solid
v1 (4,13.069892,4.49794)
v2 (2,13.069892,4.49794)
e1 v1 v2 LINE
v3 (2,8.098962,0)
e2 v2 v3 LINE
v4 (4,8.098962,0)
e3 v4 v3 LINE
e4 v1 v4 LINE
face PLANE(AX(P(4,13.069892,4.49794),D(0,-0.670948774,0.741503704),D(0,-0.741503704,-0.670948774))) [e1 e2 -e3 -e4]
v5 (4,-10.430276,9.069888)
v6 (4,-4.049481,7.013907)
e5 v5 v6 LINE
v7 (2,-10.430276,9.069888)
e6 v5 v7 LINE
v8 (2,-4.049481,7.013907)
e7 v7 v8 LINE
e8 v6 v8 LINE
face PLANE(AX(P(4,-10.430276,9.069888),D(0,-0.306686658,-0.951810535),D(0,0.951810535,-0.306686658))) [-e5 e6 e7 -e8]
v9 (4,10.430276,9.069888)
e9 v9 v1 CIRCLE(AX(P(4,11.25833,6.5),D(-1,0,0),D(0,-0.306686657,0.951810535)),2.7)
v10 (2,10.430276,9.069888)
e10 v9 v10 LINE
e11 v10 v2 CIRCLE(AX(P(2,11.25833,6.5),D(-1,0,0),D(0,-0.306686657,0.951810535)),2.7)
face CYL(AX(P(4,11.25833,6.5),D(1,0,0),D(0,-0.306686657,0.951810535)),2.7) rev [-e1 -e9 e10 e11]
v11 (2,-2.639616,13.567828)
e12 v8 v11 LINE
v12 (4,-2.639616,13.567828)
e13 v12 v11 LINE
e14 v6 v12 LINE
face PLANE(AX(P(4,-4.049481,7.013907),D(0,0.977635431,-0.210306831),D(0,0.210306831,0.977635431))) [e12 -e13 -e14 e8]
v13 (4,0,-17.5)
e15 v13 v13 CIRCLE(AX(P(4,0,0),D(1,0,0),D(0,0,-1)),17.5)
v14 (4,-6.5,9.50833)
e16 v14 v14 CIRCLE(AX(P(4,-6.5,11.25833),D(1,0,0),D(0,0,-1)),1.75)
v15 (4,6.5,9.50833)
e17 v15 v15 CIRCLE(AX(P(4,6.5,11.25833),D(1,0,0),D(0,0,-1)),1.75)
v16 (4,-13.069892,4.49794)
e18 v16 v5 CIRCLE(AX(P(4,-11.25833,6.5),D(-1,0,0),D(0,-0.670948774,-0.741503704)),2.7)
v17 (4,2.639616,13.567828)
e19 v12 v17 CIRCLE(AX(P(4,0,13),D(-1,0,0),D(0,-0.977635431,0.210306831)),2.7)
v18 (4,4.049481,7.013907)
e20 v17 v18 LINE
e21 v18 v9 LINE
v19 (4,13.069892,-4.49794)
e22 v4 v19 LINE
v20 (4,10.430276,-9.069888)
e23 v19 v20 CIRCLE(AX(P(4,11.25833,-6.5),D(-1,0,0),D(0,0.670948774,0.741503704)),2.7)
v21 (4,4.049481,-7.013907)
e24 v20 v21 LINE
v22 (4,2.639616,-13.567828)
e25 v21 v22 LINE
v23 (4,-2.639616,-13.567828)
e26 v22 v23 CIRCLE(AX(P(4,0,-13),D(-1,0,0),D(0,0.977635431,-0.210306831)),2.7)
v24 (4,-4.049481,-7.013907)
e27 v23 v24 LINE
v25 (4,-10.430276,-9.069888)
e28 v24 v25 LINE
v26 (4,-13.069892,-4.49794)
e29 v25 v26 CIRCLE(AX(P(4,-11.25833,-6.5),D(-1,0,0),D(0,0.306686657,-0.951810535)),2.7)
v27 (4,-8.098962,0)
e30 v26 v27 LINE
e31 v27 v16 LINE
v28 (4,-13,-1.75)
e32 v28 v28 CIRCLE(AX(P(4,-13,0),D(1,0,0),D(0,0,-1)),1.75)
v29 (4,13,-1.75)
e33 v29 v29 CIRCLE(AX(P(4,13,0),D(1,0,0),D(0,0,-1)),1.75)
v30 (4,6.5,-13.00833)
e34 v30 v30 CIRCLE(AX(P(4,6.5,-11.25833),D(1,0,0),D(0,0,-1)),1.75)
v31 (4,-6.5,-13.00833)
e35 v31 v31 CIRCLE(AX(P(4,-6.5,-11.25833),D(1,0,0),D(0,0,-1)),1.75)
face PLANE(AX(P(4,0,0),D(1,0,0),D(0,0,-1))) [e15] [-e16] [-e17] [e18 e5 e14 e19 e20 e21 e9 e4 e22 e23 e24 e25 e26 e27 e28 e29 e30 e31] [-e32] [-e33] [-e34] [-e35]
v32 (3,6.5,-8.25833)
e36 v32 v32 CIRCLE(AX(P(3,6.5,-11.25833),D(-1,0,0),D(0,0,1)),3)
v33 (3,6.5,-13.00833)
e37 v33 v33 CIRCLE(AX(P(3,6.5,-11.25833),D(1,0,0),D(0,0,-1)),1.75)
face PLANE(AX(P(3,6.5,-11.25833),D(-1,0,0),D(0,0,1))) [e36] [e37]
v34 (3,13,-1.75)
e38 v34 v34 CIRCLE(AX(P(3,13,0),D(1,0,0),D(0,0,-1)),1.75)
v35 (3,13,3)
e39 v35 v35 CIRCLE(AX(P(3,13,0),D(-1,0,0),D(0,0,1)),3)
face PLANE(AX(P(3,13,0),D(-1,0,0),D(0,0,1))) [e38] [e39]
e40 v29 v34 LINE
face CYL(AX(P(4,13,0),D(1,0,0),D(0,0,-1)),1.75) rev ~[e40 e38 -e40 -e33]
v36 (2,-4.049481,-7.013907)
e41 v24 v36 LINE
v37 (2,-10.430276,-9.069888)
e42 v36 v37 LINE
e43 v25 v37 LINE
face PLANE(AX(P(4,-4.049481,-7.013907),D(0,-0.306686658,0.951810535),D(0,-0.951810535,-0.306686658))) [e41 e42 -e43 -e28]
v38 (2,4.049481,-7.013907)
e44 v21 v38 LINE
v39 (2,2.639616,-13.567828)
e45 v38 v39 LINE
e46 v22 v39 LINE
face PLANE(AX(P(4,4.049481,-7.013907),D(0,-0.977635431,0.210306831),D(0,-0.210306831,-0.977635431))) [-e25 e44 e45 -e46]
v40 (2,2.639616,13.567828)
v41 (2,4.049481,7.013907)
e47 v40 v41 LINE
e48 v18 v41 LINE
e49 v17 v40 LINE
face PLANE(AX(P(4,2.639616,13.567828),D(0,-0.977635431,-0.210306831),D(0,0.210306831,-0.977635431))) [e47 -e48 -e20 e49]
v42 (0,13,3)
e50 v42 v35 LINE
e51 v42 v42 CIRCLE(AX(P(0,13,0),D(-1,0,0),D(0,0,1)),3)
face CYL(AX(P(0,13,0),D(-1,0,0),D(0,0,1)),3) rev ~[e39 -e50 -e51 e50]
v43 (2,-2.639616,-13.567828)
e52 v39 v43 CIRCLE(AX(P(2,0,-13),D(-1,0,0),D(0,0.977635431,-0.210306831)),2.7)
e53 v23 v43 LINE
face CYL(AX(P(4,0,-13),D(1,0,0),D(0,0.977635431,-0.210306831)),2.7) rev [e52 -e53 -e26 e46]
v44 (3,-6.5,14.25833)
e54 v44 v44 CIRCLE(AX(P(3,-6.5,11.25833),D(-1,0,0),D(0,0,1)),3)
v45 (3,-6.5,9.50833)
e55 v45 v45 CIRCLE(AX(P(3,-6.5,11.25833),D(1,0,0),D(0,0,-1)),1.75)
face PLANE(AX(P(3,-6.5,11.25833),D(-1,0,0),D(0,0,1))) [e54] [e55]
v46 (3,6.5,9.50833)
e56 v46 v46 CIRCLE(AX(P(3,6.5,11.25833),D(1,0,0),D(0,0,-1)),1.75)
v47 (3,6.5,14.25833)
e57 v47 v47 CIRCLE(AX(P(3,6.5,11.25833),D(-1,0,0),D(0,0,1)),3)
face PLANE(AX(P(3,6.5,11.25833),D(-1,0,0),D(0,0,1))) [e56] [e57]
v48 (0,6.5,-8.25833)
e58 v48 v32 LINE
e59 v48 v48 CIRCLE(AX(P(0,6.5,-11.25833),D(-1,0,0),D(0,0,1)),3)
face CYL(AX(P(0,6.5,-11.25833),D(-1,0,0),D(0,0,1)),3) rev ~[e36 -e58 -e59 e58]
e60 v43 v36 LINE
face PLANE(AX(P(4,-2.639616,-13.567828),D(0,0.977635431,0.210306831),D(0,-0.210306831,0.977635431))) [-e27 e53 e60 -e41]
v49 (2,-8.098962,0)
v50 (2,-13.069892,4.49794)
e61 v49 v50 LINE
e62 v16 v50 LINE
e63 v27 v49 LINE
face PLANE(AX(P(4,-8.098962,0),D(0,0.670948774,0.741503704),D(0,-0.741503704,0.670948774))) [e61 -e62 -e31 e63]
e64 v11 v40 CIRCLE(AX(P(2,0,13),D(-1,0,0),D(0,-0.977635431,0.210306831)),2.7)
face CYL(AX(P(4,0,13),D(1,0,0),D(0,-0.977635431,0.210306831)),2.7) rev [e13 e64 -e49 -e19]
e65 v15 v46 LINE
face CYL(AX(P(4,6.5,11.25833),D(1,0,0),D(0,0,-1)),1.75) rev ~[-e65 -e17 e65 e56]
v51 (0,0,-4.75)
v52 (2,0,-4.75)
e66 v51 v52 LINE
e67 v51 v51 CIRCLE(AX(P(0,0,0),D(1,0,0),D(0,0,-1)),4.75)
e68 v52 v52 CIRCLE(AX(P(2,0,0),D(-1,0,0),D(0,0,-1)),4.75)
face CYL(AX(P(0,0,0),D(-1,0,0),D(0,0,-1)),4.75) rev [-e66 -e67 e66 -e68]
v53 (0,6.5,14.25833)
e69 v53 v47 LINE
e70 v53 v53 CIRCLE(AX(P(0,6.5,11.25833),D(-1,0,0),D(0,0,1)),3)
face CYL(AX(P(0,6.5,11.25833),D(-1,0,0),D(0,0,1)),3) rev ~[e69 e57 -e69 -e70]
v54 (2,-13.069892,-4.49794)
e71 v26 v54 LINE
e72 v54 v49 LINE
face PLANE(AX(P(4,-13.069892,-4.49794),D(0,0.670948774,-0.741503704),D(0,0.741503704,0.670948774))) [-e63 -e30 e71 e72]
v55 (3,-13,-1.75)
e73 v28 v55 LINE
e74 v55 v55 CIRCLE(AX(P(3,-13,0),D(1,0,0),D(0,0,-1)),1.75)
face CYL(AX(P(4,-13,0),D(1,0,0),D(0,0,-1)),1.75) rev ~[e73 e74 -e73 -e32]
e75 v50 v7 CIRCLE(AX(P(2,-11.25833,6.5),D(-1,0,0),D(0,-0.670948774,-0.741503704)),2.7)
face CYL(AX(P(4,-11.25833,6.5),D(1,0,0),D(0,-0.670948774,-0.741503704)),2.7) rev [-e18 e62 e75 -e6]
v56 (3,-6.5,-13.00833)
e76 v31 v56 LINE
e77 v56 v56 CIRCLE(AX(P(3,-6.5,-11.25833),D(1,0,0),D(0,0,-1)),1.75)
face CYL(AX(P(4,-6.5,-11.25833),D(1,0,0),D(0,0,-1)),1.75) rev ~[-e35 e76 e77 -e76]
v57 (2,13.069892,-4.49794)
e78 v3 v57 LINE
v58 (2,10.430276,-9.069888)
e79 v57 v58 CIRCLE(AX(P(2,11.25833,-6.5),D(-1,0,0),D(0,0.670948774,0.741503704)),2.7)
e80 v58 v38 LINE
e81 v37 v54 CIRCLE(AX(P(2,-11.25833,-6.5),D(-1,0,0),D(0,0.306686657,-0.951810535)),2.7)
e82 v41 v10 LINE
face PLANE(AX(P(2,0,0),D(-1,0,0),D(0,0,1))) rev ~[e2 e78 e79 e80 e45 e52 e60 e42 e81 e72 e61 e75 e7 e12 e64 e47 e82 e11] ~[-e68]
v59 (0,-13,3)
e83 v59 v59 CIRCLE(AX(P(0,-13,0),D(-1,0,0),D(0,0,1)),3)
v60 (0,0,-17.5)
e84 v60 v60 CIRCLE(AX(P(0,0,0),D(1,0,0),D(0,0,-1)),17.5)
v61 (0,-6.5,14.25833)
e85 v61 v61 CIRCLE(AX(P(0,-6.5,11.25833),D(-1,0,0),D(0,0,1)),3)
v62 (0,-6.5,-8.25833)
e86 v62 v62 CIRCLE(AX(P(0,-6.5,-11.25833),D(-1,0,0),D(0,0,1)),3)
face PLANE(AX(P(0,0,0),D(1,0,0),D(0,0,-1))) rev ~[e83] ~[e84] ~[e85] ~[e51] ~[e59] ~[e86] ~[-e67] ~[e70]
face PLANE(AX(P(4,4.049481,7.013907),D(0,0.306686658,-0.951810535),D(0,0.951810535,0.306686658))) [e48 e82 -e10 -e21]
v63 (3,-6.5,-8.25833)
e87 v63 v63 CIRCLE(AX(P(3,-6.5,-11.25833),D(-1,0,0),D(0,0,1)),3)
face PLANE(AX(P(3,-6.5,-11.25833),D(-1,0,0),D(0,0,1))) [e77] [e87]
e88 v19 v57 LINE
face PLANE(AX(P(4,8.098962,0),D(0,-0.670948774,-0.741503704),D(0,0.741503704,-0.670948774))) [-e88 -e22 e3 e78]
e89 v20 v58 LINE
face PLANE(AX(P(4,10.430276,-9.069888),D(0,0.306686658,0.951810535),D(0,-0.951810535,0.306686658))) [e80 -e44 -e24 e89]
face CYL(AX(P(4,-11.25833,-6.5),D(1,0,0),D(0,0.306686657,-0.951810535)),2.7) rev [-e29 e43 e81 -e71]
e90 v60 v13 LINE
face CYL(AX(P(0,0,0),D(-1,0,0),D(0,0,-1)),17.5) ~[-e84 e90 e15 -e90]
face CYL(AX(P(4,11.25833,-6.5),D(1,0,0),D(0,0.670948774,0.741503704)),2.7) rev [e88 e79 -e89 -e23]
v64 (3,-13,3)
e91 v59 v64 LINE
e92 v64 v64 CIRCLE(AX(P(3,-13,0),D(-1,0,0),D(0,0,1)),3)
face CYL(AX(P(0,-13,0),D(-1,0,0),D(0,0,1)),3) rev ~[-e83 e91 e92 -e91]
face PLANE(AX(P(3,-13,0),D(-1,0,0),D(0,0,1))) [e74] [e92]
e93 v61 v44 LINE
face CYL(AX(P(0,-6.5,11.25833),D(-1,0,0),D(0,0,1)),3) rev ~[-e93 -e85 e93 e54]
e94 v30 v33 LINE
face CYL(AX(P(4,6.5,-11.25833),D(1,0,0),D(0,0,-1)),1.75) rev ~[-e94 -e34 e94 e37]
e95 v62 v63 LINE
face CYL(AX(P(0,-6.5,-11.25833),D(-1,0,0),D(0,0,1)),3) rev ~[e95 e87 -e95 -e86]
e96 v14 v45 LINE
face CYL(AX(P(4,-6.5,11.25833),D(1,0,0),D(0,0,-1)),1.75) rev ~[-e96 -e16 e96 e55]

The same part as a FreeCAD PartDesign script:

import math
import FreeCAD as App
import Part
import Sketcher

V = App.Vector
Q = App.Units.Quantity

doc = App.newDocument("Part")
body = doc.addObject("PartDesign::Body", "Body")

sketch1 = body.newObject("Sketcher::SketchObject", "Sketch")
sketch1.AttachmentSupport = (doc.getObject("YZ_Plane"), [""])
sketch1.MapMode = "FlatFace"
sketch1.addGeometry(Part.Circle(V(0, 0, 0), V(0, 0, 1), 17.5), False)
sketch1.addGeometry(Part.Circle(V(0, 0, 0), V(0, 0, 1), 4.8), False)
sketch1.addConstraint(Sketcher.Constraint("Coincident", 0, 3, -1, 1))
sketch1.addConstraint(Sketcher.Constraint("Coincident", 1, 3, -1, 1))
sketch1.addConstraint(Sketcher.Constraint("Diameter", 0, Q("35 mm")))
sketch1.addConstraint(Sketcher.Constraint("Diameter", 1, Q("9.5 mm")))
pad1 = body.newObject("PartDesign::Pad", "Pad")
pad1.Profile = sketch1
pad1.Length = 4

sketch2 = body.newObject("Sketcher::SketchObject", "Sketch001")
sketch2.AttachmentSupport = (doc.getObject("YZ_Plane"), [""])
sketch2.MapMode = "FlatFace"
sketch2.AttachmentOffset = App.Placement(V(0, 0, 4), App.Rotation())
sketch2.addGeometry(Part.LineSegment(V(-4, -7, 0), V(-2.6, -13.6, 0)), False)
sketch2.addGeometry(Part.ArcOfCircle(Part.Circle(V(0, -13, 0), V(0, 0, 1), 2.7), math.radians(-168), math.radians(-12)), False)
sketch2.addGeometry(Part.LineSegment(V(2.6, -13.6, 0), V(4, -7, 0)), False)
sketch2.addGeometry(Part.LineSegment(V(4, -7, 0), V(10.4, -9.1, 0)), False)
sketch2.addGeometry(Part.ArcOfCircle(Part.Circle(V(11.3, -6.5, 0), V(0, 0, 1), 2.7), math.radians(-108), math.radians(48)), False)
sketch2.addGeometry(Part.LineSegment(V(13.1, -4.5, 0), V(8.1, 0, 0)), False)
sketch2.addGeometry(Part.LineSegment(V(8.1, 0, 0), V(13.1, 4.5, 0)), False)
sketch2.addGeometry(Part.ArcOfCircle(Part.Circle(V(11.3, 6.5, 0), V(0, 0, 1), 2.7), math.radians(-48), math.radians(108)), False)
sketch2.addGeometry(Part.LineSegment(V(10.4, 9.1, 0), V(4, 7, 0)), False)
sketch2.addGeometry(Part.LineSegment(V(4, 7, 0), V(2.6, 13.6, 0)), False)
sketch2.addGeometry(Part.ArcOfCircle(Part.Circle(V(0, 13, 0), V(0, 0, 1), 2.7), math.radians(12), math.radians(168)), False)
sketch2.addGeometry(Part.LineSegment(V(-2.6, 13.6, 0), V(-4, 7, 0)), False)
sketch2.addGeometry(Part.LineSegment(V(-4, 7, 0), V(-10.4, 9.1, 0)), False)
sketch2.addGeometry(Part.ArcOfCircle(Part.Circle(V(-11.3, 6.5, 0), V(0, 0, 1), 2.7), math.radians(72), math.radians(228)), False)
sketch2.addGeometry(Part.LineSegment(V(-13.1, 4.5, 0), V(-8.1, 0, 0)), False)
sketch2.addGeometry(Part.LineSegment(V(-8.1, 0, 0), V(-13.1, -4.5, 0)), False)
sketch2.addGeometry(Part.ArcOfCircle(Part.Circle(V(-11.3, -6.5, 0), V(0, 0, 1), 2.7), math.radians(132), math.radians(288)), False)
sketch2.addGeometry(Part.LineSegment(V(-10.4, -9.1, 0), V(-4, -7, 0)), False)
sketch2.addConstraint(Sketcher.Constraint("Tangent", 0, 2, 1, 1))
sketch2.addConstraint(Sketcher.Constraint("Tangent", 1, 2, 2, 1))
sketch2.addConstraint(Sketcher.Constraint("Coincident", 2, 2, 3, 1))
sketch2.addConstraint(Sketcher.Constraint("Tangent", 3, 2, 4, 1))
sketch2.addConstraint(Sketcher.Constraint("Tangent", 4, 2, 5, 1))
sketch2.addConstraint(Sketcher.Constraint("Coincident", 5, 2, 6, 1))
sketch2.addConstraint(Sketcher.Constraint("Tangent", 6, 2, 7, 1))
sketch2.addConstraint(Sketcher.Constraint("Tangent", 7, 2, 8, 1))
sketch2.addConstraint(Sketcher.Constraint("Coincident", 8, 2, 9, 1))
sketch2.addConstraint(Sketcher.Constraint("Tangent", 9, 2, 10, 1))
sketch2.addConstraint(Sketcher.Constraint("Tangent", 10, 2, 11, 1))
sketch2.addConstraint(Sketcher.Constraint("Coincident", 11, 2, 12, 1))
sketch2.addConstraint(Sketcher.Constraint("Tangent", 12, 2, 13, 1))
sketch2.addConstraint(Sketcher.Constraint("Tangent", 13, 2, 14, 1))
sketch2.addConstraint(Sketcher.Constraint("Coincident", 14, 2, 15, 1))
sketch2.addConstraint(Sketcher.Constraint("Tangent", 15, 2, 16, 1))
sketch2.addConstraint(Sketcher.Constraint("Tangent", 16, 2, 17, 1))
sketch2.addConstraint(Sketcher.Constraint("Coincident", 17, 2, 0, 1))
sketch2.addConstraint(Sketcher.Constraint("Equal", 1, 4))
sketch2.addConstraint(Sketcher.Constraint("Equal", 4, 7))
sketch2.addConstraint(Sketcher.Constraint("Equal", 7, 10))
sketch2.addConstraint(Sketcher.Constraint("Equal", 10, 13))
sketch2.addConstraint(Sketcher.Constraint("Equal", 13, 16))
sketch2.addConstraint(Sketcher.Constraint("Symmetric", 1, 3, 10, 3, -1, 1))
sketch2.addConstraint(Sketcher.Constraint("Symmetric", 4, 3, 13, 3, -1, 1))
sketch2.addConstraint(Sketcher.Constraint("Symmetric", 7, 3, 16, 3, -1, 1))
sketch2.addConstraint(Sketcher.Constraint("Symmetric", 2, 2, 11, 2, -1, 1))
sketch2.addConstraint(Sketcher.Constraint("Symmetric", 5, 2, 14, 2, -1, 1))
sketch2.addConstraint(Sketcher.Constraint("Symmetric", 8, 2, 17, 2, -1, 1))
sketch2.addConstraint(Sketcher.Constraint("Symmetric", 7, 3, 13, 3, -2))
sketch2.addConstraint(Sketcher.Constraint("Symmetric", 0, 2, 1, 2, -2))
sketch2.addConstraint(Sketcher.Constraint("PointOnObject", 5, 2, -1))
sketch2.addConstraint(Sketcher.Constraint("Horizontal", 8, 2, 11, 2))
sketch2.addConstraint(Sketcher.Constraint("Equal", 2, 3))
sketch2.addConstraint(Sketcher.Constraint("Equal", 3, 5))
sketch2.addConstraint(Sketcher.Constraint("Radius", 1, Q("2.7 mm")))
sketch2.addConstraint(Sketcher.Constraint("DistanceY", 1, 3, -1, 1, Q("13 mm")))
sketch2.addConstraint(Sketcher.Constraint("DistanceY", 4, 3, 7, 3, Q("13 mm")))
sketch2.addConstraint(Sketcher.Constraint("Distance", 0, Q("6.70385 mm")))
sketch2.addConstraint(Sketcher.Constraint("DistanceX", -1, 1, 4, 3, Q("11.25833 mm")))
pocket1 = body.newObject("PartDesign::Pocket", "Pocket")
pocket1.Profile = sketch2
pocket1.Length = 2

sketch3 = body.newObject("Sketcher::SketchObject", "Sketch002")
sketch3.AttachmentSupport = (doc.getObject("YZ_Plane"), [""])
sketch3.MapMode = "FlatFace"
sketch3.AttachmentOffset = App.Placement(V(0, 0, 4), App.Rotation())
sketch3.addGeometry(Part.Circle(V(13, 0, 0), V(0, 0, 1), 1.8), False)
sketch3.addGeometry(Part.Circle(V(6.5, -11.3, 0), V(0, 0, 1), 1.8), False)
sketch3.addGeometry(Part.Circle(V(-6.5, -11.3, 0), V(0, 0, 1), 1.8), False)
sketch3.addGeometry(Part.Circle(V(-13, 0, 0), V(0, 0, 1), 1.8), False)
sketch3.addGeometry(Part.Circle(V(-6.5, 11.3, 0), V(0, 0, 1), 1.8), False)
sketch3.addGeometry(Part.Circle(V(6.5, 11.3, 0), V(0, 0, 1), 1.8), False)
sketch3.addConstraint(Sketcher.Constraint("Equal", 0, 1))
sketch3.addConstraint(Sketcher.Constraint("Equal", 1, 2))
sketch3.addConstraint(Sketcher.Constraint("Equal", 2, 3))
sketch3.addConstraint(Sketcher.Constraint("Equal", 3, 4))
sketch3.addConstraint(Sketcher.Constraint("Equal", 4, 5))
sketch3.addConstraint(Sketcher.Constraint("Symmetric", 0, 3, 3, 3, -1, 1))
sketch3.addConstraint(Sketcher.Constraint("Symmetric", 1, 3, 4, 3, -1, 1))
sketch3.addConstraint(Sketcher.Constraint("Symmetric", 2, 3, 5, 3, -1, 1))
sketch3.addConstraint(Sketcher.Constraint("Symmetric", 1, 3, 2, 3, -2))
sketch3.addConstraint(Sketcher.Constraint("PointOnObject", 0, 3, -1))
sketch3.addConstraint(Sketcher.Constraint("Diameter", 0, Q("3.5 mm")))
sketch3.addConstraint(Sketcher.Constraint("DistanceX", -1, 1, 0, 3, Q("13 mm")))
sketch3.addConstraint(Sketcher.Constraint("DistanceX", 2, 3, 1, 3, Q("13 mm")))
sketch3.addConstraint(Sketcher.Constraint("DistanceY", 1, 3, -1, 1, Q("11.25833 mm")))
pocket2 = body.newObject("PartDesign::Pocket", "Pocket001")
pocket2.Profile = sketch3
pocket2.Type = "ThroughAll"

sketch4 = body.newObject("Sketcher::SketchObject", "Sketch003")
sketch4.AttachmentSupport = (doc.getObject("YZ_Plane"), [""])
sketch4.MapMode = "FlatFace"
sketch4.addGeometry(Part.Circle(V(6.5, -11.3, 0), V(0, 0, 1), 3), False)
sketch4.addGeometry(Part.Circle(V(13, 0, 0), V(0, 0, 1), 3), False)
sketch4.addGeometry(Part.Circle(V(6.5, 11.3, 0), V(0, 0, 1), 3), False)
sketch4.addGeometry(Part.Circle(V(-6.5, 11.3, 0), V(0, 0, 1), 3), False)
sketch4.addGeometry(Part.Circle(V(-13, 0, 0), V(0, 0, 1), 3), False)
sketch4.addGeometry(Part.Circle(V(-6.5, -11.3, 0), V(0, 0, 1), 3), False)
sketch4.addConstraint(Sketcher.Constraint("Equal", 0, 1))
sketch4.addConstraint(Sketcher.Constraint("Equal", 1, 2))
sketch4.addConstraint(Sketcher.Constraint("Equal", 2, 3))
sketch4.addConstraint(Sketcher.Constraint("Equal", 3, 4))
sketch4.addConstraint(Sketcher.Constraint("Equal", 4, 5))
sketch4.addConstraint(Sketcher.Constraint("Symmetric", 0, 3, 3, 3, -1, 1))
sketch4.addConstraint(Sketcher.Constraint("Symmetric", 1, 3, 4, 3, -1, 1))
sketch4.addConstraint(Sketcher.Constraint("Symmetric", 2, 3, 5, 3, -1, 1))
sketch4.addConstraint(Sketcher.Constraint("Symmetric", 2, 3, 3, 3, -2))
sketch4.addConstraint(Sketcher.Constraint("PointOnObject", 1, 3, -1))
sketch4.addConstraint(Sketcher.Constraint("Diameter", 0, Q("6 mm")))
sketch4.addConstraint(Sketcher.Constraint("DistanceX", -1, 1, 1, 3, Q("13 mm")))
sketch4.addConstraint(Sketcher.Constraint("DistanceX", 3, 3, 2, 3, Q("13 mm")))
sketch4.addConstraint(Sketcher.Constraint("DistanceY", 0, 3, -1, 1, Q("11.25833 mm")))
pocket3 = body.newObject("PartDesign::Pocket", "Pocket002")
pocket3.Profile = sketch4
pocket3.Length = 3
pocket3.Reversed = True

doc.recompute()
